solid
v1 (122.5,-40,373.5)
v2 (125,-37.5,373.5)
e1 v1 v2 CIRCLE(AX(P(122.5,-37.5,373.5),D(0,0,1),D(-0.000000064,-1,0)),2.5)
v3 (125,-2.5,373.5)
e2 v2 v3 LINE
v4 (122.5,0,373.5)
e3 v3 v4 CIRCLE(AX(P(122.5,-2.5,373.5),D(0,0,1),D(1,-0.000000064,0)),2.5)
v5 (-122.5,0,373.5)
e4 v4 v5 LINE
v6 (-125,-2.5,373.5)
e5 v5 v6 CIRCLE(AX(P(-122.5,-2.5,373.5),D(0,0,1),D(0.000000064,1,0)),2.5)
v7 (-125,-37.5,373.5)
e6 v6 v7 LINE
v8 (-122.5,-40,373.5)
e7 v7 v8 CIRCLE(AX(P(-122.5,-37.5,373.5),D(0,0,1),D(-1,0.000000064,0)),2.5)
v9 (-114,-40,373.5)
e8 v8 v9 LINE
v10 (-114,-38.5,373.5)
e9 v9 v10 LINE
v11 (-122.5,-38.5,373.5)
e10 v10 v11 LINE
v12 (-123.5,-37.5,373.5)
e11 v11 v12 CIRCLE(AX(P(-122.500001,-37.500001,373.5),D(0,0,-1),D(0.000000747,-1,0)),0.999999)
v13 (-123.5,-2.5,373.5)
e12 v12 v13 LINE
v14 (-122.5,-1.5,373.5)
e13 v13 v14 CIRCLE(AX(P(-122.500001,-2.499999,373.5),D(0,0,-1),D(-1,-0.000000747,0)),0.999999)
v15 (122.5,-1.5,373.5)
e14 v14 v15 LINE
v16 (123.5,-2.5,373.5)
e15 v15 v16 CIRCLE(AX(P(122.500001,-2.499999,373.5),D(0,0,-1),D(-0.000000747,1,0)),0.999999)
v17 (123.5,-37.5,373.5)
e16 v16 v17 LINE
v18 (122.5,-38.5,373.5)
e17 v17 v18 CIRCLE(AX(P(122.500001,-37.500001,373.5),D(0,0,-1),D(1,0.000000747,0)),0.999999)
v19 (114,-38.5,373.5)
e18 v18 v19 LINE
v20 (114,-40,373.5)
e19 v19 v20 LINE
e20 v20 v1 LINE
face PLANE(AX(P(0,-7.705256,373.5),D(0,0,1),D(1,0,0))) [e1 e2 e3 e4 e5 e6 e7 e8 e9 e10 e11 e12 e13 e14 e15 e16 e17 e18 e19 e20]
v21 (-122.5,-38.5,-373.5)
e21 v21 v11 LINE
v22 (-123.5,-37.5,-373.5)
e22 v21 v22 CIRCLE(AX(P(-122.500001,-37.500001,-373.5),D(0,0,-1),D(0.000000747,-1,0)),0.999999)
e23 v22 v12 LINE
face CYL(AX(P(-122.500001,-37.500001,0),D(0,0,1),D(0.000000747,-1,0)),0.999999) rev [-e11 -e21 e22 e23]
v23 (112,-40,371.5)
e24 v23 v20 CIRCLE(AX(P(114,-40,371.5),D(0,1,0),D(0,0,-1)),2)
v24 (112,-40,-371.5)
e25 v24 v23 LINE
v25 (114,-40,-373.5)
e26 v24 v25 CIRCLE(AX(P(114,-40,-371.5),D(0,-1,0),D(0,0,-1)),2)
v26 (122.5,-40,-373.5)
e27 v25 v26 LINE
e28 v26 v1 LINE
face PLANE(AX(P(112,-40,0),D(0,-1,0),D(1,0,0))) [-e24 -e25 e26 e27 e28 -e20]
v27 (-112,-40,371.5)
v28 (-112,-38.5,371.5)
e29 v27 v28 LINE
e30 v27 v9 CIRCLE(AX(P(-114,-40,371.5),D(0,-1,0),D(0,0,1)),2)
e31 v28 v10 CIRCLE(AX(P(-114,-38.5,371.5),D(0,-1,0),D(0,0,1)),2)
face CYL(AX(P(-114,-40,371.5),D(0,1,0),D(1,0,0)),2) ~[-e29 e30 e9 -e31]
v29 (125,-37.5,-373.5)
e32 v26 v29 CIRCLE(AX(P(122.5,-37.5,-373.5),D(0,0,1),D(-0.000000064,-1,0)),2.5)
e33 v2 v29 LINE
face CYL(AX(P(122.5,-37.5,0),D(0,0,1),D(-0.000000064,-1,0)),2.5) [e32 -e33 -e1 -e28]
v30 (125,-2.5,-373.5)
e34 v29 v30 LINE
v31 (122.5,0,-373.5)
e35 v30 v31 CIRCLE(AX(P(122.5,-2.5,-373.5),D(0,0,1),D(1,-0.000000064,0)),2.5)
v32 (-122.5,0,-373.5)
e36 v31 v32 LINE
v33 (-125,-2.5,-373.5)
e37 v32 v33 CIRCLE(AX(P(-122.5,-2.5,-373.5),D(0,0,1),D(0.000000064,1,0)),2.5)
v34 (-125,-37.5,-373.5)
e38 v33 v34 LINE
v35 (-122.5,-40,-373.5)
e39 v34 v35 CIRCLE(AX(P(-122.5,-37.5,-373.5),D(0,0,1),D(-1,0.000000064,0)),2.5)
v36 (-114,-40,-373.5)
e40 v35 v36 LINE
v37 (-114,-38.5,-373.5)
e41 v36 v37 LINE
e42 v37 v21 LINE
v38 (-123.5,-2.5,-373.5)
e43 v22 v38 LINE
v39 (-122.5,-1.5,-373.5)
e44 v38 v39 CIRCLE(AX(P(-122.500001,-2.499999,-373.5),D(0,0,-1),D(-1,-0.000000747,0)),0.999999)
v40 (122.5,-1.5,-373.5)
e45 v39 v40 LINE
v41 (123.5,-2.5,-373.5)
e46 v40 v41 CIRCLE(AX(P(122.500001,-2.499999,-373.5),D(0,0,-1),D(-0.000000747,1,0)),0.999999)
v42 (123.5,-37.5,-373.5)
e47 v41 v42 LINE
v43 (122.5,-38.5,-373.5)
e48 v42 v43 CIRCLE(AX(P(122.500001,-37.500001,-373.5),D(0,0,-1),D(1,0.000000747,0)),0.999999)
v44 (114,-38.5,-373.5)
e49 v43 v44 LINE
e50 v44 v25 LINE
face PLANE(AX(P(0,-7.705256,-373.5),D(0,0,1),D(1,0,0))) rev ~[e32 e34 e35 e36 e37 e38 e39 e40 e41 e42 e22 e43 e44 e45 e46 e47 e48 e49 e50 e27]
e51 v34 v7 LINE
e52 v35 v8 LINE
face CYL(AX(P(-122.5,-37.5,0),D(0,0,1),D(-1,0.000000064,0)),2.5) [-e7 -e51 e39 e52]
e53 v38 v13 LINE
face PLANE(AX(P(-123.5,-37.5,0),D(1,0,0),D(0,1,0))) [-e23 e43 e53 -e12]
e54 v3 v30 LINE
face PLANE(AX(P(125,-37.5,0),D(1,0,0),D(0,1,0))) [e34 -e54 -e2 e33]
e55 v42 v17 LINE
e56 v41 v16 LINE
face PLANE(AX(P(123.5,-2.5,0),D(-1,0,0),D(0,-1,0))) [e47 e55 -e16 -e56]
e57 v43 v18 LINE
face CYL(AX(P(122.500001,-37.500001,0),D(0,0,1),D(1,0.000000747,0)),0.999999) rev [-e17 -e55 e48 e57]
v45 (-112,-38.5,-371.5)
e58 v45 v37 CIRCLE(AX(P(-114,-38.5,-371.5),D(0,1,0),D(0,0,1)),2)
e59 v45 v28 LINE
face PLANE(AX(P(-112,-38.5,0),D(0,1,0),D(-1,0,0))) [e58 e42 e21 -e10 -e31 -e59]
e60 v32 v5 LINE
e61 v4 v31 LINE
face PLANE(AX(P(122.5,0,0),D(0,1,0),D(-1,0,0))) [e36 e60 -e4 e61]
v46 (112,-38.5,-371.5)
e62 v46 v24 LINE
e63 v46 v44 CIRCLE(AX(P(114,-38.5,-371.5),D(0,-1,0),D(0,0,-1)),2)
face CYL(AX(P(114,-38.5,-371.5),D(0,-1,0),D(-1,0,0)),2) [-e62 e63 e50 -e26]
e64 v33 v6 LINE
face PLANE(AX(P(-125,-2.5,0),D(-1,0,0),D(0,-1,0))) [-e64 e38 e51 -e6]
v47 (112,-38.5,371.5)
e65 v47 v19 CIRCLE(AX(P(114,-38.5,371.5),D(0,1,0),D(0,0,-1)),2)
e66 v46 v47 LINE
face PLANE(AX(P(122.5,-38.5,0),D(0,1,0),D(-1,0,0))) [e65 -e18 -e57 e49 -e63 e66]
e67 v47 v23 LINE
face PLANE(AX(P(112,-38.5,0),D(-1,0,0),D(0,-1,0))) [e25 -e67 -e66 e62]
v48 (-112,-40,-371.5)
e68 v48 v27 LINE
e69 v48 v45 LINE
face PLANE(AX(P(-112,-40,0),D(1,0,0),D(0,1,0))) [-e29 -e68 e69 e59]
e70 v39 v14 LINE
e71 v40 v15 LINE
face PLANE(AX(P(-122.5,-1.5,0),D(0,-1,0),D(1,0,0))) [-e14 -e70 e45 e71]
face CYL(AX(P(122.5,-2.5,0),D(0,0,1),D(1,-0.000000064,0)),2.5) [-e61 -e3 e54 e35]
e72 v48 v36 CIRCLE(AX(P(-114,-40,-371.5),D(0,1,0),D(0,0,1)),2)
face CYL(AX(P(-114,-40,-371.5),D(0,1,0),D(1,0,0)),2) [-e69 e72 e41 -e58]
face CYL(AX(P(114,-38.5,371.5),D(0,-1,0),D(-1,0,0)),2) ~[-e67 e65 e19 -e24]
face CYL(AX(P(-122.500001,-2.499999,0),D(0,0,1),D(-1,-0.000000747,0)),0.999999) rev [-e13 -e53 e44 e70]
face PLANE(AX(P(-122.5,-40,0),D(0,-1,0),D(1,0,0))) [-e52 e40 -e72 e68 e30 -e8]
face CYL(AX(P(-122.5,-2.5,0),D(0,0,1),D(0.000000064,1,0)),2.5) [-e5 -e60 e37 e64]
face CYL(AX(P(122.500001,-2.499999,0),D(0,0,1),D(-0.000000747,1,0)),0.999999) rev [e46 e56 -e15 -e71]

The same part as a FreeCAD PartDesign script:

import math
import FreeCAD as App
import Part
import Sketcher
from FreeCAD import Vector


def edges_at(feature, points):
    """Names of the edges that pass closest to the given points."""
    edges = feature.Shape.Edges
    near = lambda p: min(range(len(edges)), key=lambda i: edges[i].distToShape(Part.Vertex(*p))[0])
    return sorted({f"Edge{near(p) + 1}" for p in points})

doc = App.newDocument("Part")
body = doc.addObject("PartDesign::Body", "Body")

# Sketch on XY plane
sketch1 = doc.addObject("Sketcher::SketchObject", "Sketch")
body.addObject(sketch1)
sketch1.AttachmentSupport = (doc.XY_Plane, [""])
sketch1.MapMode = "FlatFace"
sketch1.addGeometry([
    Part.LineSegment(Vector(122.5, 0, 0), Vector(-122.5, 0, 0)),  # 0
    Part.ArcOfCircle(Part.Circle(Vector(-122.5, -2.5, 0), Vector(0, 0, 1), 2.5), math.radians(90), math.radians(180)),  # 1
    Part.LineSegment(Vector(-125, -2.5, 0), Vector(-125, -37.5, 0)),  # 2
    Part.ArcOfCircle(Part.Circle(Vector(-122.5, -37.5, 0), Vector(0, 0, 1), 2.5), math.radians(180), math.radians(270)),  # 3
    Part.LineSegment(Vector(-122.5, -40, 0), Vector(-112, -40, 0)),  # 4
    Part.LineSegment(Vector(-112, -40, 0), Vector(-112, -38.5, 0)),  # 5
    Part.LineSegment(Vector(-112, -38.5, 0), Vector(-122.5, -38.5, 0)),  # 6
    Part.ArcOfCircle(Part.Circle(Vector(-122.5, -37.5, 0), Vector(0, 0, 1), 1), math.radians(180), math.radians(270)),  # 7
    Part.LineSegment(Vector(-123.5, -37.5, 0), Vector(-123.5, -2.5, 0)),  # 8
    Part.ArcOfCircle(Part.Circle(Vector(-122.5, -2.5, 0), Vector(0, 0, 1), 1), math.radians(90), math.radians(180)),  # 9
    Part.LineSegment(Vector(-122.5, -1.5, 0), Vector(122.5, -1.5, 0)),  # 10
    Part.ArcOfCircle(Part.Circle(Vector(122.5, -2.5, 0), Vector(0, 0, 1), 1), math.radians(0), math.radians(90)),  # 11
    Part.LineSegment(Vector(123.5, -2.5, 0), Vector(123.5, -37.5, 0)),  # 12
    Part.ArcOfCircle(Part.Circle(Vector(122.5, -37.5, 0), Vector(0, 0, 1), 1), math.radians(-90), math.radians(0)),  # 13
    Part.LineSegment(Vector(122.5, -38.5, 0), Vector(112, -38.5, 0)),  # 14
    Part.LineSegment(Vector(112, -38.5, 0), Vector(112, -40, 0)),  # 15
    Part.LineSegment(Vector(112, -40, 0), Vector(122.5, -40, 0)),  # 16
    Part.ArcOfCircle(Part.Circle(Vector(122.5, -37.5, 0), Vector(0, 0, 1), 2.5), math.radians(-90), math.radians(0)),  # 17
    Part.LineSegment(Vector(125, -37.5, 0), Vector(125, -2.5, 0)),  # 18
    Part.ArcOfCircle(Part.Circle(Vector(122.5, -2.5, 0), Vector(0, 0, 1), 2.5), math.radians(0), math.radians(90)),  # 19
], False)
sketch1.addConstraint([
    Sketcher.Constraint("Tangent", 0, 2, 1, 1),
    Sketcher.Constraint("Tangent", 1, 2, 2, 1),
    Sketcher.Constraint("Tangent", 2, 2, 3, 1),
    Sketcher.Constraint("Tangent", 3, 2, 4, 1),
    Sketcher.Constraint("Coincident", 4, 2, 5, 1),
    Sketcher.Constraint("Coincident", 5, 2, 6, 1),
    Sketcher.Constraint("Tangent", 6, 2, 7, 2),
    Sketcher.Constraint("Tangent", 7, 1, 8, 1),
    Sketcher.Constraint("Tangent", 8, 2, 9, 2),
    Sketcher.Constraint("Tangent", 9, 1, 10, 1),
    Sketcher.Constraint("Tangent", 10, 2, 11, 2),
    Sketcher.Constraint("Tangent", 11, 1, 12, 1),
    Sketcher.Constraint("Tangent", 12, 2, 13, 2),
    Sketcher.Constraint("Tangent", 13, 1, 14, 1),
    Sketcher.Constraint("Coincident", 14, 2, 15, 1),
    Sketcher.Constraint("Coincident", 15, 2, 16, 1),
    Sketcher.Constraint("Tangent", 16, 2, 17, 1),
    Sketcher.Constraint("Tangent", 17, 2, 18, 1),
    Sketcher.Constraint("Tangent", 18, 2, 19, 1),
    Sketcher.Constraint("Tangent", 19, 2, 0, 1),
    Sketcher.Constraint("Horizontal", 0),
    Sketcher.Constraint("Vertical", 2),
    Sketcher.Constraint("Horizontal", 4),
    Sketcher.Constraint("Vertical", 5),
    Sketcher.Constraint("Horizontal", 6),
    Sketcher.Constraint("Vertical", 8),
    Sketcher.Constraint("Horizontal", 10),
    Sketcher.Constraint("Vertical", 12),
    Sketcher.Constraint("Horizontal", 14),
    Sketcher.Constraint("Vertical", 15),
    Sketcher.Constraint("Horizontal", 16),
    Sketcher.Constraint("Vertical", 18),
    Sketcher.Constraint("Coincident", 7, 3, 3, 3),
    Sketcher.Constraint("Coincident", 9, 3, 1, 3),
    Sketcher.Constraint("Coincident", 17, 3, 13, 3),
    Sketcher.Constraint("Coincident", 19, 3, 11, 3),
    Sketcher.Constraint("Equal", 1, 3),
    Sketcher.Constraint("Equal", 9, 11),
    Sketcher.Constraint("Equal", 11, 13),
    Sketcher.Constraint("Symmetric", 0, 2, 19, 2, -1, 1),
    Sketcher.Constraint("Symmetric", 5, 2, 14, 2, -2),
    Sketcher.Constraint("Radius", 7, 0.999999),
    Sketcher.Constraint("Radius", 1, 2.5),
    Sketcher.Constraint("DistanceX", 0, 2, 0, 1, 245.0),
    Sketcher.Constraint("DistanceY", 2, 2, 2, 1, 35.0),
    Sketcher.Constraint("DistanceX", 4, 1, 4, 2, 10.5),
])
pad1 = doc.addObject("PartDesign::Pad", "Pad")
body.addObject(pad1)
pad1.Profile = sketch1
pad1.Length = 747
pad1.Midplane = True
doc.recompute()

fillet = doc.addObject("PartDesign::Fillet", "Fillet")
body.addObject(fillet)
fillet.Base = (pad1, edges_at(pad1, [
    (-112, -39.25, -373.5),
    (112, -39.25, -373.5),
    (112, -39.25, 373.5),
    (-112, -39.25, 373.5),
]))
fillet.Radius = 2

doc.recompute()
